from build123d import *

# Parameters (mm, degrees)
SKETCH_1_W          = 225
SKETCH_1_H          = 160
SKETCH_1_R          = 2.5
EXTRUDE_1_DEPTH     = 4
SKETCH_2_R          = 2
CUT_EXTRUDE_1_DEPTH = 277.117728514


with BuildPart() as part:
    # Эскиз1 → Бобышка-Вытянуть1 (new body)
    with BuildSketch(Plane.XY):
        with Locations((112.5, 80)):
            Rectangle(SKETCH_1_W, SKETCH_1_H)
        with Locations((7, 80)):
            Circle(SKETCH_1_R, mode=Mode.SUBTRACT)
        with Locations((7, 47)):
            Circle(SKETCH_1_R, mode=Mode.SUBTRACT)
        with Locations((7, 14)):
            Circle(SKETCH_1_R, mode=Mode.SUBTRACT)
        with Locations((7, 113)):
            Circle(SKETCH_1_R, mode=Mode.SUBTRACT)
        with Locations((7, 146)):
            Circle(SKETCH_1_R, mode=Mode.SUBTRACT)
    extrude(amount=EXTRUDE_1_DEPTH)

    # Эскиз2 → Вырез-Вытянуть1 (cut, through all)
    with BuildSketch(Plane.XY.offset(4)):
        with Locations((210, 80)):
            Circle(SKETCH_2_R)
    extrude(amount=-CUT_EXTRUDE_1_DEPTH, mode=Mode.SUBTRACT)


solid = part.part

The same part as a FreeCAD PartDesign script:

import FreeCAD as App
import Part
import Sketcher


def add_polygon(sketch, points):
    """Adds a closed chain of lines whose ends are joined by coincident constraints."""
    first, n = sketch.GeometryCount, len(points)
    for a, b in zip(points, points[1:] + points[:1]):
        sketch.addGeometry(Part.LineSegment(App.Vector(*a, 0), App.Vector(*b, 0)), False)
    for i in range(n):
        sketch.addConstraint(Sketcher.Constraint("Coincident", first + i, 2, first + (i + 1) % n, 1))

doc = App.newDocument("Part")
body = doc.addObject("PartDesign::Body", "Body")

sketch1 = body.newObject("Sketcher::SketchObject", "Sketch")
sketch1.AttachmentSupport = (doc.getObject("XY_Plane"), [""])
sketch1.MapMode = "FlatFace"
add_polygon(sketch1, [(0, 160), (0, 0), (225, 0), (225, 160)])
sketch1.addGeometry(Part.Circle(App.Vector(7, 14, 0), App.Vector(0, 0, 1), 2.5), False)
sketch1.addGeometry(Part.Circle(App.Vector(7, 47, 0), App.Vector(0, 0, 1), 2.5), False)
sketch1.addGeometry(Part.Circle(App.Vector(7, 80, 0), App.Vector(0, 0, 1), 2.5), False)
sketch1.addGeometry(Part.Circle(App.Vector(7, 113, 0), App.Vector(0, 0, 1), 2.5), False)
sketch1.addGeometry(Part.Circle(App.Vector(7, 146, 0), App.Vector(0, 0, 1), 2.5), False)
sketch1.addConstraint(Sketcher.Constraint("Vertical", 0))
sketch1.addConstraint(Sketcher.Constraint("Horizontal", 1))
sketch1.addConstraint(Sketcher.Constraint("Vertical", 2))
sketch1.addConstraint(Sketcher.Constraint("Horizontal", 3))
sketch1.addConstraint(Sketcher.Constraint("Coincident", 0, 2, -1, 1))
sketch1.addConstraint(Sketcher.Constraint("Equal", 4, 5))
sketch1.addConstraint(Sketcher.Constraint("Equal", 5, 6))
sketch1.addConstraint(Sketcher.Constraint("Equal", 6, 7))
sketch1.addConstraint(Sketcher.Constraint("Equal", 7, 8))
sketch1.addConstraint(Sketcher.Constraint("Vertical", 4, 3, 5, 3))
sketch1.addConstraint(Sketcher.Constraint("Vertical", 5, 3, 6, 3))
sketch1.addConstraint(Sketcher.Constraint("Vertical", 6, 3, 7, 3))
sketch1.addConstraint(Sketcher.Constraint("Vertical", 7, 3, 8, 3))
sketch1.addConstraint(Sketcher.Constraint("Diameter", 4, 5.0))
sketch1.addConstraint(Sketcher.Constraint("DistanceX", 1, 1, 1, 2, 225.0))
sketch1.addConstraint(Sketcher.Constraint("DistanceY", 0, 2, 0, 1, 160.0))
sketch1.addConstraint(Sketcher.Constraint("DistanceX", -1, 1, 4, 3, 7.0))
sketch1.addConstraint(Sketcher.Constraint("DistanceY", -1, 1, 4, 3, 14.0))
sketch1.addConstraint(Sketcher.Constraint("DistanceY", -1, 1, 5, 3, 47.0))
sketch1.addConstraint(Sketcher.Constraint("DistanceY", -1, 1, 6, 3, 80.0))
sketch1.addConstraint(Sketcher.Constraint("DistanceY", -1, 1, 7, 3, 113.0))
sketch1.addConstraint(Sketcher.Constraint("DistanceY", -1, 1, 8, 3, 146.0))
pad1 = body.newObject("PartDesign::Pad", "Pad")
pad1.Profile = sketch1
pad1.Length = 4

sketch2 = body.newObject("Sketcher::SketchObject", "Sketch001")
sketch2.AttachmentSupport = (doc.getObject("XY_Plane"), [""])
sketch2.MapMode = "FlatFace"
sketch2.AttachmentOffset = App.Placement(App.Vector(0, 0, 4), App.Rotation())
sketch2.addGeometry(Part.Circle(App.Vector(210, 80, 0), App.Vector(0, 0, 1), 2), False)
sketch2.addConstraint(Sketcher.Constraint("Diameter", 0, 4.0))
sketch2.addConstraint(Sketcher.Constraint("DistanceX", -1, 1, 0, 3, 210.0))
sketch2.addConstraint(Sketcher.Constraint("DistanceY", -1, 1, 0, 3, 80.0))
pocket1 = body.newObject("PartDesign::Pocket", "Pocket")
pocket1.Profile = sketch2
pocket1.Type = "ThroughAll"

doc.recompute()
